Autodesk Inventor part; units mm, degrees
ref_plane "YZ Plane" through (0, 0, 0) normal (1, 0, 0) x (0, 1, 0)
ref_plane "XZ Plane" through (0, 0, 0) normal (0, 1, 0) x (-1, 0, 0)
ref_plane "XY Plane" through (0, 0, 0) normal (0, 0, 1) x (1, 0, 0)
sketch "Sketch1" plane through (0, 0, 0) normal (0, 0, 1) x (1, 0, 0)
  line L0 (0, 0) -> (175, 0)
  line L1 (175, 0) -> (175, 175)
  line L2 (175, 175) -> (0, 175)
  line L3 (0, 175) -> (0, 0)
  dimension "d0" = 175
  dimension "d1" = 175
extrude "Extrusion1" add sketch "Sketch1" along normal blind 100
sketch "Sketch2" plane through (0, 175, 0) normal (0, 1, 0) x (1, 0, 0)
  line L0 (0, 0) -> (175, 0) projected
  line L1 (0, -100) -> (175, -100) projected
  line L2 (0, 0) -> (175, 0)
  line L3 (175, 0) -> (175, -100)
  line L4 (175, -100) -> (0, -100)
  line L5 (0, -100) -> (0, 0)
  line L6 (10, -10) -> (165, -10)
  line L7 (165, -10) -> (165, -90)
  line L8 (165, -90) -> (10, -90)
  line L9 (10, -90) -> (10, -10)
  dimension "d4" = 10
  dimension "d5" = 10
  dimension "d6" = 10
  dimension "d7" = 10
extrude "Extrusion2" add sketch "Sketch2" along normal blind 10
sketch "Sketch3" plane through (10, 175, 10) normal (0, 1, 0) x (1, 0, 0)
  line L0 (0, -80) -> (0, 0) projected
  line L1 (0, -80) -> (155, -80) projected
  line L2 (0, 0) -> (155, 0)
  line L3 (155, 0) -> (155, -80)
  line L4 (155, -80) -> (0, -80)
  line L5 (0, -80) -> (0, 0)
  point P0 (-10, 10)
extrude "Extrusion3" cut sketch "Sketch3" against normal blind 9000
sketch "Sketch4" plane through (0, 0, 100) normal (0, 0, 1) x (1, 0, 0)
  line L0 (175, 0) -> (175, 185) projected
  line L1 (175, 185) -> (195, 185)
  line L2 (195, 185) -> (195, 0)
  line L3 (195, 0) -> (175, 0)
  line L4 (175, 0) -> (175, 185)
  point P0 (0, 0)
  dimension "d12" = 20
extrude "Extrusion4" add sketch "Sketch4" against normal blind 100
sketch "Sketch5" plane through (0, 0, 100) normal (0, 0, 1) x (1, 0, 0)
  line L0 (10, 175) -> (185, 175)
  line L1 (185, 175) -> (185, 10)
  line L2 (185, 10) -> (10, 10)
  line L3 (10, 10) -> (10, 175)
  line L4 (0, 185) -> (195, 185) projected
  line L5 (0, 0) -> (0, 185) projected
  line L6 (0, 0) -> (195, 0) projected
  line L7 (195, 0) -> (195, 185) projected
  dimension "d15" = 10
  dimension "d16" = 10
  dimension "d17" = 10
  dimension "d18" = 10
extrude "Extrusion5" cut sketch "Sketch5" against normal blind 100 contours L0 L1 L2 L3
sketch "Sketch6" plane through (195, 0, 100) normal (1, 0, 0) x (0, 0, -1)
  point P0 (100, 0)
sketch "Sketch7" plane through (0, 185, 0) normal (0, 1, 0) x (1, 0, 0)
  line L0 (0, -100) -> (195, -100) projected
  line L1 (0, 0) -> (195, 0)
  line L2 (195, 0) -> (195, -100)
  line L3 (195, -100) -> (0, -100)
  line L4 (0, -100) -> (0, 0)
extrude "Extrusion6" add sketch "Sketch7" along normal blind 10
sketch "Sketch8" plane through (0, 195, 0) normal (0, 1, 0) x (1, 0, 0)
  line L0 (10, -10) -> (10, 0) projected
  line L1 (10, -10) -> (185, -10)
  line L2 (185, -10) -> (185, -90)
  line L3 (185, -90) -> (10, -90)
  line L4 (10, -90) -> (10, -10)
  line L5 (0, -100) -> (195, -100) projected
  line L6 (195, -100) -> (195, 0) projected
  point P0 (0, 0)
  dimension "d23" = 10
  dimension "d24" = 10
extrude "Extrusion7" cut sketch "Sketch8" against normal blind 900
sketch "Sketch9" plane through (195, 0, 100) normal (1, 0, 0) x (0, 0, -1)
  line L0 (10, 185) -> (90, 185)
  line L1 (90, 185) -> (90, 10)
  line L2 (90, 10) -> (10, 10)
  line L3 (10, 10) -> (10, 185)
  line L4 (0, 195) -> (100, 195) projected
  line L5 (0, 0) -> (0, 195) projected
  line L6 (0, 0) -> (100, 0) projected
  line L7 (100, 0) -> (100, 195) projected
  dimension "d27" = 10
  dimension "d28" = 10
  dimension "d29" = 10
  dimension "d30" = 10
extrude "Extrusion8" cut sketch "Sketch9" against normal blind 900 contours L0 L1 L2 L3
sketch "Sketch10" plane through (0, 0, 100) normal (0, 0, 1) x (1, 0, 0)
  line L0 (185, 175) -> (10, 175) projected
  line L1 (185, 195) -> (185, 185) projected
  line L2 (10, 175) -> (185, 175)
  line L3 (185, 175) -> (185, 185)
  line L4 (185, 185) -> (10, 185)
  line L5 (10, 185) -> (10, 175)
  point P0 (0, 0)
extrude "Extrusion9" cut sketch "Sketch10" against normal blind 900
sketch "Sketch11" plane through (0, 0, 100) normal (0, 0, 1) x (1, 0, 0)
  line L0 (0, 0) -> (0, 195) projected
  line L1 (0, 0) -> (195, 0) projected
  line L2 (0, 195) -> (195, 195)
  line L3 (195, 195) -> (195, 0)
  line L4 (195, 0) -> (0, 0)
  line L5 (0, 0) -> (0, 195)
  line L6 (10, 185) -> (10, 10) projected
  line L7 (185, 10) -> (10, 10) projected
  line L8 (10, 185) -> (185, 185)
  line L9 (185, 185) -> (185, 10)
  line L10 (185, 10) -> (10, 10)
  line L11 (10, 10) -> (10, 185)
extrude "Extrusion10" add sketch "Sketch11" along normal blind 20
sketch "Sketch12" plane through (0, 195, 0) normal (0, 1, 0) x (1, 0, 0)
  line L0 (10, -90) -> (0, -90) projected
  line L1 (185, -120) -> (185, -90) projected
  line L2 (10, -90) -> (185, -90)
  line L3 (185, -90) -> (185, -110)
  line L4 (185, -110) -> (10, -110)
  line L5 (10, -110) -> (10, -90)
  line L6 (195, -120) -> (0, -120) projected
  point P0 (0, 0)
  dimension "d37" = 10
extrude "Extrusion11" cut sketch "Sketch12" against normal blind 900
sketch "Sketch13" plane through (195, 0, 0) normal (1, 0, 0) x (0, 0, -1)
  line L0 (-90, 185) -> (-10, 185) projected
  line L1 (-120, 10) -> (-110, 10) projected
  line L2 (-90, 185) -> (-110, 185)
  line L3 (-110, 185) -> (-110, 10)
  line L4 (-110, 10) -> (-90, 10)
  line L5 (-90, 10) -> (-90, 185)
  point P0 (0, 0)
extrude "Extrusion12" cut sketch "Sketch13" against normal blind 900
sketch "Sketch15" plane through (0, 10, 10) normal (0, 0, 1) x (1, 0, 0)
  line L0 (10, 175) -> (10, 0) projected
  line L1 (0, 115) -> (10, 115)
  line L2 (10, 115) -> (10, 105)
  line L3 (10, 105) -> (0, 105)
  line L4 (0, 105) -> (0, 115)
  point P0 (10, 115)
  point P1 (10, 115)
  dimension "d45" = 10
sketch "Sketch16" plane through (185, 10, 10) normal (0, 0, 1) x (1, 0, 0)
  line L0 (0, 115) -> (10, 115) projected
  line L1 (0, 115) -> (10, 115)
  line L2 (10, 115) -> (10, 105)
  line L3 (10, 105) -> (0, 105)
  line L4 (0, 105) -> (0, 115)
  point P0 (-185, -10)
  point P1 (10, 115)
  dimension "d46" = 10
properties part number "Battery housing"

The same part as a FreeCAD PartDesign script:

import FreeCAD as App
import Part
import Sketcher

V = App.Vector


def add_polygon(sketch, points):
    """Adds a closed chain of lines whose ends are joined by coincident constraints."""
    first, n = sketch.GeometryCount, len(points)
    for a, b in zip(points, points[1:] + points[:1]):
        sketch.addGeometry(Part.LineSegment(App.Vector(*a, 0), App.Vector(*b, 0)), False)
    for i in range(n):
        sketch.addConstraint(Sketcher.Constraint("Coincident", first + i, 2, first + (i + 1) % n, 1))

doc = App.newDocument("Part")
body = doc.addObject("PartDesign::Body", "Body")

# Sketch on XY plane
sketch1 = body.newObject("Sketcher::SketchObject", "Sketch")
sketch1.AttachmentSupport = (doc.getObject("XY_Plane"), [""])
sketch1.MapMode = "FlatFace"
add_polygon(sketch1, [(0, 175), (0, 0), (175, 0), (175, 175)])  # lines 0-3
sketch1.addConstraint([
    Sketcher.Constraint("Vertical", 0),
    Sketcher.Constraint("Horizontal", 1),
    Sketcher.Constraint("Vertical", 2),
    Sketcher.Constraint("Horizontal", 3),
    Sketcher.Constraint("Coincident", 0, 2, -1, 1),
    Sketcher.Constraint("Equal", 3, 0),
    Sketcher.Constraint("DistanceX", 1, 1, 1, 2, 175.0),
])
pad1 = body.newObject("PartDesign::Pad", "Pad")
pad1.Profile = sketch1
pad1.Length = 100

# Sketch on XZ plane
sketch2 = body.newObject("Sketcher::SketchObject", "Sketch001")
sketch2.AttachmentSupport = (doc.getObject("XZ_Plane"), [""])
sketch2.MapMode = "FlatFace"
sketch2.AttachmentOffset = App.Placement(V(0, 0, -175), App.Rotation())
add_polygon(sketch2, [(175, 0), (0, 0), (0, 100), (175, 100)])  # lines 0-3
add_polygon(sketch2, [(10, 90), (10, 10), (165, 10), (165, 90)])  # lines 4-7
sketch2.addConstraint([
    Sketcher.Constraint("Horizontal", 0),
    Sketcher.Constraint("Vertical", 1),
    Sketcher.Constraint("Horizontal", 2),
    Sketcher.Constraint("Vertical", 3),
    Sketcher.Constraint("Vertical", 4),
    Sketcher.Constraint("Horizontal", 5),
    Sketcher.Constraint("Vertical", 6),
    Sketcher.Constraint("Horizontal", 7),
    Sketcher.Constraint("Coincident", 0, 2, -1, 1),
    Sketcher.Constraint("DistanceX", -1, 1, 4, 2, 10.0),
    Sketcher.Constraint("DistanceY", -1, 1, 4, 2, 10.0),
    Sketcher.Constraint("DistanceX", 5, 2, 3, 2, 10.0),
    Sketcher.Constraint("DistanceY", 6, 2, 2, 2, 10.0),
    Sketcher.Constraint("DistanceX", 0, 2, 0, 1, 175.0),
    Sketcher.Constraint("DistanceY", 1, 1, 1, 2, 100.0),
])
pad2 = body.newObject("PartDesign::Pad", "Pad001")
pad2.Profile = sketch2
pad2.Length = 10
pad2.Reversed = True

# Sketch on XZ plane
sketch3 = body.newObject("Sketcher::SketchObject", "Sketch002")
sketch3.AttachmentSupport = (doc.getObject("XZ_Plane"), [""])
sketch3.MapMode = "FlatFace"
sketch3.AttachmentOffset = App.Placement(V(0, 0, -175), App.Rotation())
add_polygon(sketch3, [(10, 10), (10, 90), (165, 90), (165, 10)])  # lines 0-3
sketch3.addConstraint([
    Sketcher.Constraint("Vertical", 0),
    Sketcher.Constraint("Horizontal", 1),
    Sketcher.Constraint("Vertical", 2),
    Sketcher.Constraint("Horizontal", 3),
    Sketcher.Constraint("DistanceX", 1, 1, 1, 2, 155.0),
    Sketcher.Constraint("DistanceY", 0, 1, 0, 2, 80.0),
    Sketcher.Constraint("DistanceX", -1, 1, 0, 2, 10.0),
    Sketcher.Constraint("DistanceY", -1, 1, 0, 2, 90.0),
])
pocket1 = body.newObject("PartDesign::Pocket", "Pocket")
pocket1.Profile = sketch3
pocket1.Length = 9000
pocket1.Reversed = True

# Sketch on XY plane
sketch4 = body.newObject("Sketcher::SketchObject", "Sketch003")
sketch4.AttachmentSupport = (doc.getObject("XY_Plane"), [""])
sketch4.MapMode = "FlatFace"
sketch4.AttachmentOffset = App.Placement(V(0, 0, 100), App.Rotation())
add_polygon(sketch4, [(175, 185), (175, 0), (195, 0), (195, 185)])  # lines 0-3
sketch4.addConstraint([
    Sketcher.Constraint("Vertical", 0),
    Sketcher.Constraint("Horizontal", 1),
    Sketcher.Constraint("Vertical", 2),
    Sketcher.Constraint("Horizontal", 3),
    Sketcher.Constraint("PointOnObject", 0, 2, -1),
    Sketcher.Constraint("DistanceX", 1, 1, 1, 2, 20.0),
    Sketcher.Constraint("DistanceY", 0, 2, 0, 1, 185.0),
    Sketcher.Constraint("DistanceX", -1, 1, 0, 2, 175.0),
])
pad3 = body.newObject("PartDesign::Pad", "Pad002")
pad3.Profile = sketch4
pad3.Length = 100
pad3.Reversed = True

# Sketch on XY plane
sketch5 = body.newObject("Sketcher::SketchObject", "Sketch004")
sketch5.AttachmentSupport = (doc.getObject("XY_Plane"), [""])
sketch5.MapMode = "FlatFace"
sketch5.AttachmentOffset = App.Placement(V(0, 0, 100), App.Rotation())
add_polygon(sketch5, [(185, 175), (10, 175), (10, 10), (185, 10)])  # lines 0-3
sketch5.addConstraint([
    Sketcher.Constraint("Horizontal", 0),
    Sketcher.Constraint("Vertical", 1),
    Sketcher.Constraint("Horizontal", 2),
    Sketcher.Constraint("Vertical", 3),
    Sketcher.Constraint("DistanceX", -1, 1, 0, 2, 10.0),
    Sketcher.Constraint("DistanceY", -1, 1, 1, 2, 10.0),
    Sketcher.Constraint("DistanceX", 0, 2, 0, 1, 175.0),
    Sketcher.Constraint("DistanceY", 1, 2, 1, 1, 165.0),
])
pocket2 = body.newObject("PartDesign::Pocket", "Pocket001")
pocket2.Profile = sketch5
pocket2.Length = 100

# Sketch on XZ plane
sketch6 = body.newObject("Sketcher::SketchObject", "Sketch005")
sketch6.AttachmentSupport = (doc.getObject("XZ_Plane"), [""])
sketch6.MapMode = "FlatFace"
sketch6.AttachmentOffset = App.Placement(V(0, 0, -185), App.Rotation())
add_polygon(sketch6, [(0, 0), (0, 100), (195, 100), (195, 0)])  # lines 0-3
sketch6.addConstraint([
    Sketcher.Constraint("Vertical", 0),
    Sketcher.Constraint("Horizontal", 1),
    Sketcher.Constraint("Vertical", 2),
    Sketcher.Constraint("Horizontal", 3),
    Sketcher.Constraint("Coincident", 3, 2, -1, 1),
    Sketcher.Constraint("DistanceX", 1, 1, 1, 2, 195.0),
    Sketcher.Constraint("DistanceY", 0, 1, 0, 2, 100.0),
])
pad4 = body.newObject("PartDesign::Pad", "Pad003")
pad4.Profile = sketch6
pad4.Length = 10
pad4.Reversed = True

# Sketch on XZ plane
sketch7 = body.newObject("Sketcher::SketchObject", "Sketch006")
sketch7.AttachmentSupport = (doc.getObject("XZ_Plane"), [""])
sketch7.MapMode = "FlatFace"
sketch7.AttachmentOffset = App.Placement(V(0, 0, -195), App.Rotation())
add_polygon(sketch7, [(185, 10), (10, 10), (10, 90), (185, 90)])  # lines 0-3
sketch7.addConstraint([
    Sketcher.Constraint("Horizontal", 0),
    Sketcher.Constraint("Vertical", 1),
    Sketcher.Constraint("Horizontal", 2),
    Sketcher.Constraint("Vertical", 3),
    Sketcher.Constraint("DistanceX", -1, 1, 0, 2, 10.0),
    Sketcher.Constraint("DistanceY", -1, 1, 0, 2, 10.0),
    Sketcher.Constraint("DistanceX", 0, 2, 0, 1, 175.0),
    Sketcher.Constraint("DistanceY", 1, 1, 1, 2, 80.0),
])
pocket3 = body.newObject("PartDesign::Pocket", "Pocket002")
pocket3.Profile = sketch7
pocket3.Length = 900
pocket3.Reversed = True

# Sketch on YZ plane
sketch8 = body.newObject("Sketcher::SketchObject", "Sketch007")
sketch8.AttachmentSupport = (doc.getObject("YZ_Plane"), [""])
sketch8.MapMode = "FlatFace"
sketch8.AttachmentOffset = App.Placement(V(0, 0, 195), App.Rotation())
add_polygon(sketch8, [(185, 10), (185, 90), (10, 90), (10, 10)])  # lines 0-3
sketch8.addConstraint([
    Sketcher.Constraint("Vertical", 0),
    Sketcher.Constraint("Horizontal", 1),
    Sketcher.Constraint("Vertical", 2),
    Sketcher.Constraint("Horizontal", 3),
    Sketcher.Constraint("DistanceX", -1, 1, 1, 2, 10.0),
    Sketcher.Constraint("DistanceY", -1, 1, 2, 2, 10.0),
    Sketcher.Constraint("DistanceX", 1, 2, 1, 1, 175.0),
    Sketcher.Constraint("DistanceY", 0, 1, 0, 2, 80.0),
])
pocket4 = body.newObject("PartDesign::Pocket", "Pocket003")
pocket4.Profile = sketch8
pocket4.Length = 900

# Sketch on XY plane
sketch9 = body.newObject("Sketcher::SketchObject", "Sketch008")
sketch9.AttachmentSupport = (doc.getObject("XY_Plane"), [""])
sketch9.MapMode = "FlatFace"
sketch9.AttachmentOffset = App.Placement(V(0, 0, 100), App.Rotation())
add_polygon(sketch9, [(10, 175), (185, 175), (185, 185), (10, 185)])  # lines 0-3
sketch9.addConstraint([
    Sketcher.Constraint("Horizontal", 0),
    Sketcher.Constraint("Vertical", 1),
    Sketcher.Constraint("Horizontal", 2),
    Sketcher.Constraint("Vertical", 3),
    Sketcher.Constraint("DistanceX", 0, 1, 0, 2, 175.0),
    Sketcher.Constraint("DistanceY", 1, 1, 1, 2, 10.0),
    Sketcher.Constraint("DistanceX", -1, 1, 0, 2, 185.0),
    Sketcher.Constraint("DistanceY", -1, 1, 0, 2, 175.0),
])
pocket5 = body.newObject("PartDesign::Pocket", "Pocket004")
pocket5.Profile = sketch9
pocket5.Length = 900

# Sketch on XY plane
sketch10 = body.newObject("Sketcher::SketchObject", "Sketch009")
sketch10.AttachmentSupport = (doc.getObject("XY_Plane"), [""])
sketch10.MapMode = "FlatFace"
sketch10.AttachmentOffset = App.Placement(V(0, 0, 100), App.Rotation())
add_polygon(sketch10, [(0, 195), (0, 0), (195, 0), (195, 195)])  # lines 0-3
add_polygon(sketch10, [(10, 10), (10, 185), (185, 185), (185, 10)])  # lines 4-7
sketch10.addConstraint([
    Sketcher.Constraint("Vertical", 0),
    Sketcher.Constraint("Horizontal", 1),
    Sketcher.Constraint("Vertical", 2),
    Sketcher.Constraint("Horizontal", 3),
    Sketcher.Constraint("Vertical", 4),
    Sketcher.Constraint("Horizontal", 5),
    Sketcher.Constraint("Vertical", 6),
    Sketcher.Constraint("Horizontal", 7),
    Sketcher.Constraint("Coincident", 0, 2, -1, 1),
    Sketcher.Constraint("Equal", 3, 0),
    Sketcher.Constraint("Equal", 7, 4),
    Sketcher.Constraint("DistanceX", 1, 1, 1, 2, 195.0),
    Sketcher.Constraint("DistanceX", 5, 1, 5, 2, 175.0),
    Sketcher.Constraint("DistanceX", -1, 1, 4, 2, 10.0),
    Sketcher.Constraint("DistanceY", -1, 1, 4, 2, 185.0),
])
pad5 = body.newObject("PartDesign::Pad", "Pad004")
pad5.Profile = sketch10
pad5.Length = 20

# Sketch on XZ plane
sketch11 = body.newObject("Sketcher::SketchObject", "Sketch010")
sketch11.AttachmentSupport = (doc.getObject("XZ_Plane"), [""])
sketch11.MapMode = "FlatFace"
sketch11.AttachmentOffset = App.Placement(V(0, 0, -195), App.Rotation())
add_polygon(sketch11, [(10, 110), (185, 110), (185, 90), (10, 90)])  # lines 0-3
sketch11.addConstraint([
    Sketcher.Constraint("Horizontal", 0),
    Sketcher.Constraint("Vertical", 1),
    Sketcher.Constraint("Horizontal", 2),
    Sketcher.Constraint("Vertical", 3),
    Sketcher.Constraint("DistanceX", -1, 1, 2, 2, 10.0),
    Sketcher.Constraint("DistanceX", 0, 1, 0, 2, 175.0),
    Sketcher.Constraint("DistanceY", 1, 2, 1, 1, 20.0),
    Sketcher.Constraint("DistanceY", -1, 1, 0, 2, 110.0),
])
pocket6 = body.newObject("PartDesign::Pocket", "Pocket005")
pocket6.Profile = sketch11
pocket6.Length = 900
pocket6.Reversed = True

# Sketch on YZ plane
sketch12 = body.newObject("Sketcher::SketchObject", "Sketch011")
sketch12.AttachmentSupport = (doc.getObject("YZ_Plane"), [""])
sketch12.MapMode = "FlatFace"
sketch12.AttachmentOffset = App.Placement(V(0, 0, 195), App.Rotation())
add_polygon(sketch12, [(10, 90), (185, 90), (185, 110), (10, 110)])  # lines 0-3
sketch12.addConstraint([
    Sketcher.Constraint("Horizontal", 0),
    Sketcher.Constraint("Vertical", 1),
    Sketcher.Constraint("Horizontal", 2),
    Sketcher.Constraint("Vertical", 3),
    Sketcher.Constraint("DistanceX", 0, 1, 0, 2, 175.0),
    Sketcher.Constraint("DistanceY", 1, 1, 1, 2, 20.0),
    Sketcher.Constraint("DistanceX", -1, 1, 0, 2, 185.0),
    Sketcher.Constraint("DistanceY", -1, 1, 0, 2, 90.0),
])
pocket7 = body.newObject("PartDesign::Pocket", "Pocket006")
pocket7.Profile = sketch12
pocket7.Length = 900

doc.recompute()
